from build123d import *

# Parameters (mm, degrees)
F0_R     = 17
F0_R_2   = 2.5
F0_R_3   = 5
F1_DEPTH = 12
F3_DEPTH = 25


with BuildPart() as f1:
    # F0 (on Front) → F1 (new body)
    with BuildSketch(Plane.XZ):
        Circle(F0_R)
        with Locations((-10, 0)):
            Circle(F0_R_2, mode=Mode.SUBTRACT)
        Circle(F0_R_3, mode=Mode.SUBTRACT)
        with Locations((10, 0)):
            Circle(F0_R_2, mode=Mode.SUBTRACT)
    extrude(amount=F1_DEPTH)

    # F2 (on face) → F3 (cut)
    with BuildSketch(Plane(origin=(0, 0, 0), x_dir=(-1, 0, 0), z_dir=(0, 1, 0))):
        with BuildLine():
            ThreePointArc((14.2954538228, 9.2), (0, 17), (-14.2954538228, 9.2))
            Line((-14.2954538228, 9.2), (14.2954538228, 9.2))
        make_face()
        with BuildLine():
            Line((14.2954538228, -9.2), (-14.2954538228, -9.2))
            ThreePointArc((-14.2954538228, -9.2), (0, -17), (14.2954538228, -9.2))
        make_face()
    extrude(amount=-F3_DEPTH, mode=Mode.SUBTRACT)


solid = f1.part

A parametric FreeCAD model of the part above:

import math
import FreeCAD as App
import Part
import Sketcher
from FreeCAD import Vector
Q = App.Units.Quantity

doc = App.newDocument("Part")
body = doc.addObject("PartDesign::Body", "Body")

# Sketch on XZ plane
sketch1 = body.newObject("Sketcher::SketchObject", "Sketch")
sketch1.AttachmentSupport = (doc.getObject("XZ_Plane"), [""])
sketch1.MapMode = "FlatFace"
sketch1.addGeometry([
    Part.Circle(Vector(0, 0, 0), Vector(0, 0, 1), 17),
    Part.Circle(Vector(-10, 0, 0), Vector(0, 0, 1), 2.5),
    Part.Circle(Vector(0, 0, 0), Vector(0, 0, 1), 5),
    Part.Circle(Vector(10, 0, 0), Vector(0, 0, 1), 2.5),
], False)
sketch1.addConstraint([
    Sketcher.Constraint("Coincident", 0, 3, -1, 1),
    Sketcher.Constraint("Coincident", 2, 3, -1, 1),
    Sketcher.Constraint("Equal", 1, 3),
    Sketcher.Constraint("Symmetric", 1, 3, 3, 3, -1, 1),
    Sketcher.Constraint("PointOnObject", 1, 3, -1),
    Sketcher.Constraint("Diameter", 0, Q("34 mm")),
    Sketcher.Constraint("Diameter", 1, Q("5 mm")),
    Sketcher.Constraint("Diameter", 2, Q("10 mm")),
    Sketcher.Constraint("DistanceX", 1, 3, -1, 1, Q("10 mm")),
])
pad1 = body.newObject("PartDesign::Pad", "Pad")
pad1.Profile = sketch1
pad1.Length = 12

# Sketch on XZ plane
sketch2 = body.newObject("Sketcher::SketchObject", "Sketch001")
sketch2.AttachmentSupport = (doc.getObject("XZ_Plane"), [""])
sketch2.MapMode = "FlatFace"
sketch2.addGeometry([
    Part.ArcOfCircle(Part.Circle(Vector(0, 0, 0), Vector(0, 0, 1), 17), math.radians(32.763762), math.radians(147.236238)),
    Part.LineSegment(Vector(14.295454, 9.2, 0), Vector(-14.295454, 9.2, 0)),
    Part.LineSegment(Vector(-14.295454, -9.2, 0), Vector(14.295454, -9.2, 0)),
    Part.ArcOfCircle(Part.Circle(Vector(0, 0, 0), Vector(0, 0, 1), 17), math.radians(-147.236238), math.radians(-32.763762)),
], False)
sketch2.addConstraint([
    Sketcher.Constraint("Coincident", 0, 1, 1, 1),
    Sketcher.Constraint("Coincident", 1, 2, 0, 2),
    Sketcher.Constraint("Coincident", 2, 1, 3, 1),
    Sketcher.Constraint("Coincident", 3, 2, 2, 2),
    Sketcher.Constraint("Horizontal", 1),
    Sketcher.Constraint("Horizontal", 2),
    Sketcher.Constraint("Coincident", 0, 3, -1, 1),
    Sketcher.Constraint("Coincident", 3, 3, -1, 1),
    Sketcher.Constraint("Equal", 0, 3),
    Sketcher.Constraint("Vertical", 1, 2, 2, 1),
    Sketcher.Constraint("Radius", 0, Q("17 mm")),
    Sketcher.Constraint("DistanceY", -1, 1, 0, 1, Q("9.2 mm")),
])
pocket1 = body.newObject("PartDesign::Pocket", "Pocket")
pocket1.Profile = sketch2
pocket1.Length = 25
pocket1.Reversed = True

doc.recompute()
